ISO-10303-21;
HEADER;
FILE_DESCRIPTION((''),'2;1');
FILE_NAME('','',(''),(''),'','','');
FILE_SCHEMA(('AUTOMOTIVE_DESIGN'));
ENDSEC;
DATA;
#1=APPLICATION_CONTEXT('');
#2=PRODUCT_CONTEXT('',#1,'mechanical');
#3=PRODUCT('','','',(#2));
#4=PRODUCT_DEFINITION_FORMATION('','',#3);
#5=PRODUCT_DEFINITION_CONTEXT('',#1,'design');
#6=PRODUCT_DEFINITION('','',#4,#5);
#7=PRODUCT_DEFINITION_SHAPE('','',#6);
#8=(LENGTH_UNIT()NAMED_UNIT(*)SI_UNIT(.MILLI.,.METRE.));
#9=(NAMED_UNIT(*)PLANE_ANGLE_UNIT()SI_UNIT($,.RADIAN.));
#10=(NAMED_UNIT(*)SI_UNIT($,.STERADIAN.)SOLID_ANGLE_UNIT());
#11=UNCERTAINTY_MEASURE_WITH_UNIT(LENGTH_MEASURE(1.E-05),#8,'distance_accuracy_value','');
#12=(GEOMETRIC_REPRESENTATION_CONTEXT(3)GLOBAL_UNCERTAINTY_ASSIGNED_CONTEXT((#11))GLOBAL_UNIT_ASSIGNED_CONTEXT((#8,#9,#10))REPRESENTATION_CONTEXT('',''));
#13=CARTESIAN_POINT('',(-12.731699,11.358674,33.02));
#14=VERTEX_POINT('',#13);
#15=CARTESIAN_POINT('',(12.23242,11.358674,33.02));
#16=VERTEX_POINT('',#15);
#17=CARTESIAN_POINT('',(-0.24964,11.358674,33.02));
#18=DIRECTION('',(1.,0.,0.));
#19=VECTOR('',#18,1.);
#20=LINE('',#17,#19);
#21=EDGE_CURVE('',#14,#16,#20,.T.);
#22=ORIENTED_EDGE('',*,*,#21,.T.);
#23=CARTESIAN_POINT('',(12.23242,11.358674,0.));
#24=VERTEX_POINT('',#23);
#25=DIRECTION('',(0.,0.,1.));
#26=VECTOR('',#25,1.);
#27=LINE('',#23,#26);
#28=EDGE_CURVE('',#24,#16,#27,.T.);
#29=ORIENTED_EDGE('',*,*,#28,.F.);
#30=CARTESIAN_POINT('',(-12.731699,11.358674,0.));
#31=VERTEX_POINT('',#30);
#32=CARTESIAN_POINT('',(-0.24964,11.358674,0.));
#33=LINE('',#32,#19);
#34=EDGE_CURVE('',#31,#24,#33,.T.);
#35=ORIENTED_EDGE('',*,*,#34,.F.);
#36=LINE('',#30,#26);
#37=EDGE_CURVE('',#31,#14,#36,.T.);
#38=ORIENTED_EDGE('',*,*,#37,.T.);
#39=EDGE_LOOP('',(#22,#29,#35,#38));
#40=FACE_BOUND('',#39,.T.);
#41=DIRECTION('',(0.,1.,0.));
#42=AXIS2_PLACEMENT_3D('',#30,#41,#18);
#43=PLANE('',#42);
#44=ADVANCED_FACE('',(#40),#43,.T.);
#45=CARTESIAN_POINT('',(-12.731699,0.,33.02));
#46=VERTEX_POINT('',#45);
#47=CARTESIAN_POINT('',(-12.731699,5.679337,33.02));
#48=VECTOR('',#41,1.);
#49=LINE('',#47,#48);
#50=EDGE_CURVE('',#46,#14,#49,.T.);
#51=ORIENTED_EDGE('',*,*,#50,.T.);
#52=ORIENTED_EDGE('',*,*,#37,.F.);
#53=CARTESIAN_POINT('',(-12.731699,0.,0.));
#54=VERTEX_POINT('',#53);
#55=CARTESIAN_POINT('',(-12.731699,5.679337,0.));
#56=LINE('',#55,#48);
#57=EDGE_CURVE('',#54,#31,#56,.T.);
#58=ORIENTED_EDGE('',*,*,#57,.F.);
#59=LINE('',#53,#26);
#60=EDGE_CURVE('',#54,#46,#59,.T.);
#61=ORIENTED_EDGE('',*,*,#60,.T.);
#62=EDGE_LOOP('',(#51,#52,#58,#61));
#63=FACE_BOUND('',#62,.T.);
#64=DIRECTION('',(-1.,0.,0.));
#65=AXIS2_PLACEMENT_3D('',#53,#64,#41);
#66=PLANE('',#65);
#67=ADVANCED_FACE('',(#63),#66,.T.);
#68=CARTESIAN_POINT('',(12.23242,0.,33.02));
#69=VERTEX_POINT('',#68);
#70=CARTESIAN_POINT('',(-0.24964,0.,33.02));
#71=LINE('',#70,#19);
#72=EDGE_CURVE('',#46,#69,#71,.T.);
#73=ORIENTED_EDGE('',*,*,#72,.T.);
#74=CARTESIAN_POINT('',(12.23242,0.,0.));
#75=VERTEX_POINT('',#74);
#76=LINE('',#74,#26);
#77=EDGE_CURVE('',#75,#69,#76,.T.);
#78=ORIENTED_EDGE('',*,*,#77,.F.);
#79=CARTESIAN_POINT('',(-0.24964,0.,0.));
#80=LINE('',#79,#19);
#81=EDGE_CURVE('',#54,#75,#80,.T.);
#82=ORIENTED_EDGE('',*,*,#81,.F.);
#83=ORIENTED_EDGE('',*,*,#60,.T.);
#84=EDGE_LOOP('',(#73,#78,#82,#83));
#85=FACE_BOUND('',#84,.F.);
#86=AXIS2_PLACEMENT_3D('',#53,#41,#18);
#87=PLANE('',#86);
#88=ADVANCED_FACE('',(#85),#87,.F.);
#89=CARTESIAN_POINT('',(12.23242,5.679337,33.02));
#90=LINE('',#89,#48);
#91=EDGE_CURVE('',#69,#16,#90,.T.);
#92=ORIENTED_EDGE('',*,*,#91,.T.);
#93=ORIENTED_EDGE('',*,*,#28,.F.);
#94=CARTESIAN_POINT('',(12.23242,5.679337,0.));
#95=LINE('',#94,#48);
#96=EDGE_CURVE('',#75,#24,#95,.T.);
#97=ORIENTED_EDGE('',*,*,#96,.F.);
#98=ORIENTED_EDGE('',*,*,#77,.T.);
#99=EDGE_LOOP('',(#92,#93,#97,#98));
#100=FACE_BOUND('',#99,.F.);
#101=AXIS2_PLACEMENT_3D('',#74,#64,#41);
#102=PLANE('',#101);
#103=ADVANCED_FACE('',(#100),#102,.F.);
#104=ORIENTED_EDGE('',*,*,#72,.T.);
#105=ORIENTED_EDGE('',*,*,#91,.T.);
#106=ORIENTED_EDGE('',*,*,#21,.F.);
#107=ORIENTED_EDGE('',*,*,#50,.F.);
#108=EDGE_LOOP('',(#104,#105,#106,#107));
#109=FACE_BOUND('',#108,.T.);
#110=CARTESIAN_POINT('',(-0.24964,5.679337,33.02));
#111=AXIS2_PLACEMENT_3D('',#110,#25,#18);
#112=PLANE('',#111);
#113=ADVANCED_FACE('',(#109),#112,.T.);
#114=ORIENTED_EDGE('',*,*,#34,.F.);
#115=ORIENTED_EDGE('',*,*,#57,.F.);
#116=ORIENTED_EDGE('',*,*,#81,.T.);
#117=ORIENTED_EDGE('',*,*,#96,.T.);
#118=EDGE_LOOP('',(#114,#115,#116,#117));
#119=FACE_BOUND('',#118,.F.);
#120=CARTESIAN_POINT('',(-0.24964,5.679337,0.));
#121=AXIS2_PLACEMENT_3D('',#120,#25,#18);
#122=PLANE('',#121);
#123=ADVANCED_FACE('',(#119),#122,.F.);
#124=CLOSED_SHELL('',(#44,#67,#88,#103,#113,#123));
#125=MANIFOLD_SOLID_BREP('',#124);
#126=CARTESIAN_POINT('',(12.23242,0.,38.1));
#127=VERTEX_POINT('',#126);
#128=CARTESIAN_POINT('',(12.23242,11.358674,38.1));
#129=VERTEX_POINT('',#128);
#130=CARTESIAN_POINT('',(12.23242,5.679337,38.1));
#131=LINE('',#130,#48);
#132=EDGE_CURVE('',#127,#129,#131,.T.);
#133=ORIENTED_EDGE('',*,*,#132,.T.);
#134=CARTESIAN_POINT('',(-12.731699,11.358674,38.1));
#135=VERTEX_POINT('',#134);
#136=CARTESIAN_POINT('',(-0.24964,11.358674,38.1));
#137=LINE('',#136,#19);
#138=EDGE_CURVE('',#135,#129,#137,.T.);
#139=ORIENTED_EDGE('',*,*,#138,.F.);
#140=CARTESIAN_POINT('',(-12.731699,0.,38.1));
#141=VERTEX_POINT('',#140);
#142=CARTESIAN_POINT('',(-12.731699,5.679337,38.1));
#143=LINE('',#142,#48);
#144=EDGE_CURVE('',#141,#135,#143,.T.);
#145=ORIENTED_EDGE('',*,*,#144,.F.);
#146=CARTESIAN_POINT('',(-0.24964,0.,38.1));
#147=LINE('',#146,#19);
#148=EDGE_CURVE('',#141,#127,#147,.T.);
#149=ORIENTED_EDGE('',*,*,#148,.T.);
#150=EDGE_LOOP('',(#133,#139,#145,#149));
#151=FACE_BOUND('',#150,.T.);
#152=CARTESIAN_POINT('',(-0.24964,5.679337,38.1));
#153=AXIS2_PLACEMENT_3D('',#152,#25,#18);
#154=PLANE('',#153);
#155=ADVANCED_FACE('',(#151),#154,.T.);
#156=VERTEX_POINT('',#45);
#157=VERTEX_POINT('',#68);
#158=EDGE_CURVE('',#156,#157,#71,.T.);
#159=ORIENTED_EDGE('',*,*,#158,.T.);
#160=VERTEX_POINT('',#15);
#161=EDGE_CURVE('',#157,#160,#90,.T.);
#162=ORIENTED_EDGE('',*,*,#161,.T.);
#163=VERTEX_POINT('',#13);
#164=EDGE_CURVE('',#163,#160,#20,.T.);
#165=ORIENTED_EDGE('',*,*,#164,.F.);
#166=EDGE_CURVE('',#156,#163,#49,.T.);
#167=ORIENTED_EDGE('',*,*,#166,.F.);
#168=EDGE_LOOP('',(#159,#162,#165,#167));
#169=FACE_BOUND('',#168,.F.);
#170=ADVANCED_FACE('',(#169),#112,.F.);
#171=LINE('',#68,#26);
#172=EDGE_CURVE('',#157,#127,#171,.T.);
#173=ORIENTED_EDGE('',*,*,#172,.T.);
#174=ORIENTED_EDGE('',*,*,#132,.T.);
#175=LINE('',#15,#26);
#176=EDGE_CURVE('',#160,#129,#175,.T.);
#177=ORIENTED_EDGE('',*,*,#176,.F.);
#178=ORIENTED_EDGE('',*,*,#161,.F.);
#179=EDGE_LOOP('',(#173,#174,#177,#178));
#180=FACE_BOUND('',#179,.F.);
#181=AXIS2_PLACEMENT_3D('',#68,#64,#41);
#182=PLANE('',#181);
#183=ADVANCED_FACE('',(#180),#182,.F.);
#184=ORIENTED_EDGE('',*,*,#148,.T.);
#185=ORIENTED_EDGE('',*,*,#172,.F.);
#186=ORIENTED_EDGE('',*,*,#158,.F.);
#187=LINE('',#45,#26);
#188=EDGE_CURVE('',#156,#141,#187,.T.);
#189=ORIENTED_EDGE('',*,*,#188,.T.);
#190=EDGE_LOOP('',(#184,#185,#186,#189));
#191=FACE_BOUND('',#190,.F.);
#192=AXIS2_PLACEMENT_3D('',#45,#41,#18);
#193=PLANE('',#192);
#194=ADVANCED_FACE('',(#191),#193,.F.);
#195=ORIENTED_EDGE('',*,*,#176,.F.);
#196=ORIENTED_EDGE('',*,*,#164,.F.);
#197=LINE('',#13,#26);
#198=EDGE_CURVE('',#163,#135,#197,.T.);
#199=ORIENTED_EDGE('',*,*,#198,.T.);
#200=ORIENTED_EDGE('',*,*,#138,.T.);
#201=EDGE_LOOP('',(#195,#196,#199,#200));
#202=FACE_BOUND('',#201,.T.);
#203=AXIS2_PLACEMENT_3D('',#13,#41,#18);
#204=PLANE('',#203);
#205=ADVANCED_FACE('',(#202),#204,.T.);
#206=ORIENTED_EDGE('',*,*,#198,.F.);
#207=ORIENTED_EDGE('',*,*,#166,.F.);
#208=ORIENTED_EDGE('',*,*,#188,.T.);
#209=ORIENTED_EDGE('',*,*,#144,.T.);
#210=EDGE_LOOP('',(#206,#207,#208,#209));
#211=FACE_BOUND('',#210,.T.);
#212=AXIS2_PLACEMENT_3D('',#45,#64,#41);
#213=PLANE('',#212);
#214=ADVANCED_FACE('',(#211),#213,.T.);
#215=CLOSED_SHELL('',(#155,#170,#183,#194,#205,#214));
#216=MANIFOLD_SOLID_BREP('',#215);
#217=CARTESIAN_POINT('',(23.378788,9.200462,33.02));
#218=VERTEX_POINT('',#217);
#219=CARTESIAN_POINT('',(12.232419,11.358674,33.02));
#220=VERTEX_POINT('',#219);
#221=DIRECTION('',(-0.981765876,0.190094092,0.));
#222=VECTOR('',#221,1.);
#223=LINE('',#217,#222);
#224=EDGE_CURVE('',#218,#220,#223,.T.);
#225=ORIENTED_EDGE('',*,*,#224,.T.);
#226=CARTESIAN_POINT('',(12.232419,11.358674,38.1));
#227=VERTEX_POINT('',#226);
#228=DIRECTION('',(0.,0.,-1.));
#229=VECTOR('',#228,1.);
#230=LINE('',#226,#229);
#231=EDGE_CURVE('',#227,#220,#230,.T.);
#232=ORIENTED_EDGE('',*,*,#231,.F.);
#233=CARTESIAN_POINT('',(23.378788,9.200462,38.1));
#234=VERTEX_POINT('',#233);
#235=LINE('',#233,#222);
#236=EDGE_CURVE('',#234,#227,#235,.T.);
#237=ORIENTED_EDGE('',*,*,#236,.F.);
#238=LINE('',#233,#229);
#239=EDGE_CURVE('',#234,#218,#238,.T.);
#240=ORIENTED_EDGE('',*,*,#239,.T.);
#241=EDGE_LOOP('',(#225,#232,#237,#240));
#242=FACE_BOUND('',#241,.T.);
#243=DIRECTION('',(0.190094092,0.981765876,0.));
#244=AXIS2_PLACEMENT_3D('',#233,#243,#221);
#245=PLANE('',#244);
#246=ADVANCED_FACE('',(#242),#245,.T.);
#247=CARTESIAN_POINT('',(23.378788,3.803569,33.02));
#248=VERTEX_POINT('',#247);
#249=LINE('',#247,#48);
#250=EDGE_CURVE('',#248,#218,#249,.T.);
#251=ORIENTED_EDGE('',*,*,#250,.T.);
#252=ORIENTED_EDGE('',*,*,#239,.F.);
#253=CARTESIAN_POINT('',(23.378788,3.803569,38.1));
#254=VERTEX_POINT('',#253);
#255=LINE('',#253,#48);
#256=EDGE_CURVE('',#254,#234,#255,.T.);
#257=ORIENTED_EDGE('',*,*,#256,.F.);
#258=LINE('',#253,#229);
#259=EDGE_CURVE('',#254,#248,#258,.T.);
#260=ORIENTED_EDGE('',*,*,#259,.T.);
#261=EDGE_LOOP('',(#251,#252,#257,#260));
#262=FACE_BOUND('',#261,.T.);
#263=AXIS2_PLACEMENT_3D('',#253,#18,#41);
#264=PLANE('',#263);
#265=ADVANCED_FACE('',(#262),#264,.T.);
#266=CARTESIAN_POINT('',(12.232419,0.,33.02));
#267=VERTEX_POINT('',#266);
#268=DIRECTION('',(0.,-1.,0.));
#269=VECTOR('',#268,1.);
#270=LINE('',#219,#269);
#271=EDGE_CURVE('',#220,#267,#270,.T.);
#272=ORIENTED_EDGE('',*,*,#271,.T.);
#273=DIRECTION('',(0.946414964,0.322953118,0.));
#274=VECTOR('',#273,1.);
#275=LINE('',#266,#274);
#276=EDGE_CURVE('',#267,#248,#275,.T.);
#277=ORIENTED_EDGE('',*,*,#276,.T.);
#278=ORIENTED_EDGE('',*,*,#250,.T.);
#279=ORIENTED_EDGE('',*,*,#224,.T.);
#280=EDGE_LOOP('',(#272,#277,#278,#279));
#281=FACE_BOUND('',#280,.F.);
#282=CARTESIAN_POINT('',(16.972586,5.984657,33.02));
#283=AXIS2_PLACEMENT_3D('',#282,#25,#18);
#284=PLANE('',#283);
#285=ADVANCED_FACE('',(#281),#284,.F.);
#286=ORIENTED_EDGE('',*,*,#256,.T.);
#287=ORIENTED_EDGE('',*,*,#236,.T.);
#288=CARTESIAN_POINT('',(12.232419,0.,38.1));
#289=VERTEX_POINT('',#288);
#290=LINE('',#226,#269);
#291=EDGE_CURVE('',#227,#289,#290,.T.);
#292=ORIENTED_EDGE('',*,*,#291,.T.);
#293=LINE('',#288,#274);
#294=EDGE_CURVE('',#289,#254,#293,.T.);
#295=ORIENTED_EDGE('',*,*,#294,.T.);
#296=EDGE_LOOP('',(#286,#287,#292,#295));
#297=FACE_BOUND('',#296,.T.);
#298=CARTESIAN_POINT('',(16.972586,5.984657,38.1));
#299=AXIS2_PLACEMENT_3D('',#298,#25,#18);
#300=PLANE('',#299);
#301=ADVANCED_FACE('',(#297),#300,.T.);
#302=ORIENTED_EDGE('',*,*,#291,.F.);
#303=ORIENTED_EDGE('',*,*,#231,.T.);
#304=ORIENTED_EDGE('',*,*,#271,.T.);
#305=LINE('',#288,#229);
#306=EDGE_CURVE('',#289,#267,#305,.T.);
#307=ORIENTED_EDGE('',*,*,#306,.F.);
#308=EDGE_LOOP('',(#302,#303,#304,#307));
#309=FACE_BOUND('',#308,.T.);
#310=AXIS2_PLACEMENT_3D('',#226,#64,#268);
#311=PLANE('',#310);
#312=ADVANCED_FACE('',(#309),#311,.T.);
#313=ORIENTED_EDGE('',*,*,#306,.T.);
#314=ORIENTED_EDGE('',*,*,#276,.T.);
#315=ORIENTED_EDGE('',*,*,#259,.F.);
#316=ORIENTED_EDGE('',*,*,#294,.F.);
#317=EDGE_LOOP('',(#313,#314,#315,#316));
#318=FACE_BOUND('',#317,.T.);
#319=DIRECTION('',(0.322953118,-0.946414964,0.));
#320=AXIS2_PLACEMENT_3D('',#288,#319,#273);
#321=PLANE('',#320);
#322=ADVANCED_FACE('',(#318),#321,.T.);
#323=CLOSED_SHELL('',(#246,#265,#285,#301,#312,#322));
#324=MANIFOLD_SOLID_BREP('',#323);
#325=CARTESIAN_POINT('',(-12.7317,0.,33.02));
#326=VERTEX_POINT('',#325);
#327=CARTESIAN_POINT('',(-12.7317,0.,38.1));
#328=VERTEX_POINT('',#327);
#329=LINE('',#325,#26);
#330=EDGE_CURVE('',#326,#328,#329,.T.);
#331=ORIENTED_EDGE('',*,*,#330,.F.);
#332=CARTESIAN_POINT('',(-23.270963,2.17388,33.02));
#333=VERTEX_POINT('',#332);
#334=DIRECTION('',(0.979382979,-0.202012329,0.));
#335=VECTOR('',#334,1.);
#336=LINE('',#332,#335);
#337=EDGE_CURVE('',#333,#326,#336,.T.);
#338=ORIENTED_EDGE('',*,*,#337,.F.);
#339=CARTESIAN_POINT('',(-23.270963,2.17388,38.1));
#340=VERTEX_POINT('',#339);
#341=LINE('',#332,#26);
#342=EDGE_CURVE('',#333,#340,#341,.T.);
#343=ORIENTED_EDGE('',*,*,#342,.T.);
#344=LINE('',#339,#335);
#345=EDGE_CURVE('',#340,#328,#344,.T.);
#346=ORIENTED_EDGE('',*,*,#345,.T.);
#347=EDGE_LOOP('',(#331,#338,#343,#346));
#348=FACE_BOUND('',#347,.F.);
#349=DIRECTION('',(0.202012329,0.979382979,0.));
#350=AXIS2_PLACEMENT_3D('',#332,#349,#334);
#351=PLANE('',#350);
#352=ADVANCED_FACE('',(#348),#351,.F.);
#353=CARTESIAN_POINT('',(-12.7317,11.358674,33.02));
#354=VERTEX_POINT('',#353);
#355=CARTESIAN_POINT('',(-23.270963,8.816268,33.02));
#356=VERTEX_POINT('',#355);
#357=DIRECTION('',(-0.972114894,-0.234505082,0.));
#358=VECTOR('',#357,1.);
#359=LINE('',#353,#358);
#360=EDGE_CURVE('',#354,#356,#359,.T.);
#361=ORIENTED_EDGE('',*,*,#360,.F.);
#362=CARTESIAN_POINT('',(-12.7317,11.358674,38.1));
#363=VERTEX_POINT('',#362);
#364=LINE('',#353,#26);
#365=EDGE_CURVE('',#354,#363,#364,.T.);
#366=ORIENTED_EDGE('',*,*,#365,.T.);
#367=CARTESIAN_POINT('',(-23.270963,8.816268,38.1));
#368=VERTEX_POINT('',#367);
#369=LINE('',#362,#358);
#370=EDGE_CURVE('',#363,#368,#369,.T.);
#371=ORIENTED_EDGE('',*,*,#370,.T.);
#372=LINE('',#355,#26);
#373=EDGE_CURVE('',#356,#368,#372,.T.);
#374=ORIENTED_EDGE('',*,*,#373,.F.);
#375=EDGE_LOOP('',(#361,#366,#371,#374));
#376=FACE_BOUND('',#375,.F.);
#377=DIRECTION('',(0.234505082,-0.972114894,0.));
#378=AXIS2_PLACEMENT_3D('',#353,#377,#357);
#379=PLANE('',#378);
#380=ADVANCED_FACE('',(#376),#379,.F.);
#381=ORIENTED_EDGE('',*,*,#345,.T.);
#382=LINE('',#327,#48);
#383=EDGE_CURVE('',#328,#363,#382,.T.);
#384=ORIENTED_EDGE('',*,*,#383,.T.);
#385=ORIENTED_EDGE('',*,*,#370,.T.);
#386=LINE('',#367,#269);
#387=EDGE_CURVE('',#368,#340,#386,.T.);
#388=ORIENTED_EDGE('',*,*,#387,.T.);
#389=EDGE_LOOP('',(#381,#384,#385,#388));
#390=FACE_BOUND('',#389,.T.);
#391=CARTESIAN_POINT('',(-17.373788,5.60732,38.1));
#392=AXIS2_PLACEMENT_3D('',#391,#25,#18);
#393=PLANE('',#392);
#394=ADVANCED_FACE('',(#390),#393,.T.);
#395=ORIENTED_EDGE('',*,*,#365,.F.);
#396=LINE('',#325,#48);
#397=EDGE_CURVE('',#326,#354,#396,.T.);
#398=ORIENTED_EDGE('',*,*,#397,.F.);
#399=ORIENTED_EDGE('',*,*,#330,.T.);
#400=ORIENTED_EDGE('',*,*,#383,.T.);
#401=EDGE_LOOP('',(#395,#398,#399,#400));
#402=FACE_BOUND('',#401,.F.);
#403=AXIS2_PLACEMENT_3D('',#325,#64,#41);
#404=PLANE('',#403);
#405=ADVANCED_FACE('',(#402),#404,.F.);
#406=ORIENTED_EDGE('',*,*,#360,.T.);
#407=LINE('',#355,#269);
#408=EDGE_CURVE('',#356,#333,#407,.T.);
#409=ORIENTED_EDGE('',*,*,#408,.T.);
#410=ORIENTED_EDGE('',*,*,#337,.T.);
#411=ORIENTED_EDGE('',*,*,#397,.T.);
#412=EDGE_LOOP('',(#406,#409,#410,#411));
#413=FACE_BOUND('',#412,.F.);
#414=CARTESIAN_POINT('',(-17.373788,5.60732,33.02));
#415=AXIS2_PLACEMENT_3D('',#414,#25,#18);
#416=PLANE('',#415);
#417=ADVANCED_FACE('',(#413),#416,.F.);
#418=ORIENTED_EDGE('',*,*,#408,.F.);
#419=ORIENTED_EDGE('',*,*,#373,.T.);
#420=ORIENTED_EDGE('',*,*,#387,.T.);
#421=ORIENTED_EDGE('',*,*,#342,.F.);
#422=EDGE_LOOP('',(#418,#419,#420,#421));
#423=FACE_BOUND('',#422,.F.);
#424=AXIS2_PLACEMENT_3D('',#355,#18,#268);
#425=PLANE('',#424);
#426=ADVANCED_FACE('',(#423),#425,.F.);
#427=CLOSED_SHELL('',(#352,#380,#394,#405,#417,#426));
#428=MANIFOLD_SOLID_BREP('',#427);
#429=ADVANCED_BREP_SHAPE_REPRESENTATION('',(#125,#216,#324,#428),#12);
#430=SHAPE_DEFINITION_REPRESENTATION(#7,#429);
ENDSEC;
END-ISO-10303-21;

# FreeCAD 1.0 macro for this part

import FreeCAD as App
import Part
import Sketcher
from FreeCAD import Vector
Q = App.Units.Quantity

doc = App.newDocument("Part")
body = doc.addObject("PartDesign::Body", "Body")

# Sketch on XY plane
sketch1 = doc.addObject("Sketcher::SketchObject", "Sketch")
body.addObject(sketch1)
sketch1.AttachmentSupport = (doc.XY_Plane, [""])
sketch1.MapMode = "FlatFace"
sketch1.addGeometry([
    Part.LineSegment(Vector(-13, 11, 0), Vector(-13, 0, 0)),
    Part.LineSegment(Vector(-13, 0, 0), Vector(12, 0, 0)),
    Part.LineSegment(Vector(12, 0, 0), Vector(12, 11, 0)),
    Part.LineSegment(Vector(12, 11, 0), Vector(-13, 11, 0)),
], False)
sketch1.addConstraint([
    Sketcher.Constraint("Coincident", 0, 2, 1, 1),
    Sketcher.Constraint("Coincident", 1, 2, 2, 1),
    Sketcher.Constraint("Coincident", 2, 2, 3, 1),
    Sketcher.Constraint("Coincident", 3, 2, 0, 1),
    Sketcher.Constraint("Vertical", 0),
    Sketcher.Constraint("Horizontal", 1),
    Sketcher.Constraint("Vertical", 2),
    Sketcher.Constraint("Horizontal", 3),
    Sketcher.Constraint("PointOnObject", 0, 2, -1),
    Sketcher.Constraint("DistanceX", 1, 1, 1, 2, Q("24.964119 mm")),
    Sketcher.Constraint("DistanceX", 0, 2, -1, 1, Q("12.731699 mm")),
    Sketcher.Constraint("DistanceY", 0, 2, 0, 1, Q("11.358674 mm")),
])
pad1 = doc.addObject("PartDesign::Pad", "Pad")
body.addObject(pad1)
pad1.Profile = sketch1
pad1.Length = Q("1.3 in")
body2 = doc.addObject("PartDesign::Body", "Body001")

# Sketch on XY plane
sketch2 = doc.addObject("Sketcher::SketchObject", "Sketch001")
body2.addObject(sketch2)
sketch2.AttachmentSupport = (doc.getObject("XY_Plane001"), [""])
sketch2.MapMode = "FlatFace"
sketch2.AttachmentOffset = App.Placement(Vector(0, 0, 1.3 * 25.4), App.Rotation())
sketch2.addGeometry([
    Part.LineSegment(Vector(-13, 0, 0), Vector(-13, 11, 0)),
    Part.LineSegment(Vector(-13, 11, 0), Vector(-23, 9, 0)),
    Part.LineSegment(Vector(-23, 9, 0), Vector(-23, 2, 0)),
    Part.LineSegment(Vector(-23, 2, 0), Vector(-13, 0, 0)),
], False)
sketch2.addConstraint([
    Sketcher.Constraint("Coincident", 0, 2, 1, 1),
    Sketcher.Constraint("Coincident", 1, 2, 2, 1),
    Sketcher.Constraint("Coincident", 2, 2, 3, 1),
    Sketcher.Constraint("Coincident", 3, 2, 0, 1),
    Sketcher.Constraint("Vertical", 0),
    Sketcher.Constraint("Vertical", 2),
    Sketcher.Constraint("PointOnObject", 3, 2, -1),
    Sketcher.Constraint("DistanceY", 2, 2, 2, 1, Q("6.642388 mm")),
    Sketcher.Constraint("DistanceX", 0, 2, -1, 1, Q("12.7317 mm")),
    Sketcher.Constraint("Distance", 1, Q("10.841582 mm")),
    Sketcher.Constraint("DistanceY", 0, 1, 0, 2, Q("11.358674 mm")),
    Sketcher.Constraint("DistanceY", -1, 1, 1, 2, Q("8.816268 mm")),
])
pad2 = doc.addObject("PartDesign::Pad", "Pad001")
body2.addObject(pad2)
pad2.Profile = sketch2
pad2.Length = Q("0.2 in")
body3 = doc.addObject("PartDesign::Body", "Body002")

# Sketch on XY plane
sketch3 = doc.addObject("Sketcher::SketchObject", "Sketch002")
body3.addObject(sketch3)
sketch3.AttachmentSupport = (doc.getObject("XY_Plane002"), [""])
sketch3.MapMode = "FlatFace"
sketch3.AttachmentOffset = App.Placement(Vector(0, 0, 1.3 * 25.4), App.Rotation())
sketch3.addGeometry([
    Part.LineSegment(Vector(-13, 11, 0), Vector(-13, 0, 0)),
    Part.LineSegment(Vector(-13, 0, 0), Vector(12, 0, 0)),
    Part.LineSegment(Vector(12, 0, 0), Vector(12, 11, 0)),
    Part.LineSegment(Vector(12, 11, 0), Vector(-13, 11, 0)),
], False)
sketch3.addConstraint([
    Sketcher.Constraint("Coincident", 0, 2, 1, 1),
    Sketcher.Constraint("Coincident", 1, 2, 2, 1),
    Sketcher.Constraint("Coincident", 2, 2, 3, 1),
    Sketcher.Constraint("Coincident", 3, 2, 0, 1),
    Sketcher.Constraint("Vertical", 0),
    Sketcher.Constraint("Horizontal", 1),
    Sketcher.Constraint("Vertical", 2),
    Sketcher.Constraint("Horizontal", 3),
    Sketcher.Constraint("PointOnObject", 0, 2, -1),
    Sketcher.Constraint("DistanceX", 1, 1, 1, 2, Q("24.964119 mm")),
    Sketcher.Constraint("DistanceX", 0, 2, -1, 1, Q("12.731699 mm")),
    Sketcher.Constraint("DistanceY", 0, 2, 0, 1, Q("11.358674 mm")),
])
pad3 = doc.addObject("PartDesign::Pad", "Pad002")
body3.addObject(pad3)
pad3.Profile = sketch3
pad3.Length = Q("0.2 in")
body4 = doc.addObject("PartDesign::Body", "Body003")

# Sketch on XY plane
sketch4 = doc.addObject("Sketcher::SketchObject", "Sketch003")
body4.addObject(sketch4)
sketch4.AttachmentSupport = (doc.getObject("XY_Plane003"), [""])
sketch4.MapMode = "FlatFace"
sketch4.AttachmentOffset = App.Placement(Vector(0, 0, 1.5 * 25.4), App.Rotation())
sketch4.addGeometry([
    Part.LineSegment(Vector(23, 9, 0), Vector(12, 11, 0)),
    Part.LineSegment(Vector(12, 11, 0), Vector(12, 0, 0)),
    Part.LineSegment(Vector(12, 0, 0), Vector(23, 4, 0)),
    Part.LineSegment(Vector(23, 4, 0), Vector(23, 9, 0)),
], False)
sketch4.addConstraint([
    Sketcher.Constraint("Coincident", 0, 2, 1, 1),
    Sketcher.Constraint("Coincident", 1, 2, 2, 1),
    Sketcher.Constraint("Coincident", 2, 2, 3, 1),
    Sketcher.Constraint("Coincident", 3, 2, 0, 1),
    Sketcher.Constraint("Vertical", 1),
    Sketcher.Constraint("Vertical", 3),
    Sketcher.Constraint("PointOnObject", 1, 2, -1),
    Sketcher.Constraint("Distance", 0, Q("11.353388 mm")),
    Sketcher.Constraint("DistanceY", 1, 2, 1, 1, Q("11.358674 mm")),
    Sketcher.Constraint("DistanceY", 3, 1, 3, 2, Q("5.396893 mm")),
    Sketcher.Constraint("DistanceX", -1, 1, 0, 2, Q("12.232419 mm")),
    Sketcher.Constraint("DistanceX", -1, 1, 2, 2, Q("23.378788 mm")),
])
pad4 = doc.addObject("PartDesign::Pad", "Pad003")
body4.addObject(pad4)
pad4.Profile = sketch4
pad4.Length = Q("0.2 in")
pad4.Reversed = True

doc.recompute()
